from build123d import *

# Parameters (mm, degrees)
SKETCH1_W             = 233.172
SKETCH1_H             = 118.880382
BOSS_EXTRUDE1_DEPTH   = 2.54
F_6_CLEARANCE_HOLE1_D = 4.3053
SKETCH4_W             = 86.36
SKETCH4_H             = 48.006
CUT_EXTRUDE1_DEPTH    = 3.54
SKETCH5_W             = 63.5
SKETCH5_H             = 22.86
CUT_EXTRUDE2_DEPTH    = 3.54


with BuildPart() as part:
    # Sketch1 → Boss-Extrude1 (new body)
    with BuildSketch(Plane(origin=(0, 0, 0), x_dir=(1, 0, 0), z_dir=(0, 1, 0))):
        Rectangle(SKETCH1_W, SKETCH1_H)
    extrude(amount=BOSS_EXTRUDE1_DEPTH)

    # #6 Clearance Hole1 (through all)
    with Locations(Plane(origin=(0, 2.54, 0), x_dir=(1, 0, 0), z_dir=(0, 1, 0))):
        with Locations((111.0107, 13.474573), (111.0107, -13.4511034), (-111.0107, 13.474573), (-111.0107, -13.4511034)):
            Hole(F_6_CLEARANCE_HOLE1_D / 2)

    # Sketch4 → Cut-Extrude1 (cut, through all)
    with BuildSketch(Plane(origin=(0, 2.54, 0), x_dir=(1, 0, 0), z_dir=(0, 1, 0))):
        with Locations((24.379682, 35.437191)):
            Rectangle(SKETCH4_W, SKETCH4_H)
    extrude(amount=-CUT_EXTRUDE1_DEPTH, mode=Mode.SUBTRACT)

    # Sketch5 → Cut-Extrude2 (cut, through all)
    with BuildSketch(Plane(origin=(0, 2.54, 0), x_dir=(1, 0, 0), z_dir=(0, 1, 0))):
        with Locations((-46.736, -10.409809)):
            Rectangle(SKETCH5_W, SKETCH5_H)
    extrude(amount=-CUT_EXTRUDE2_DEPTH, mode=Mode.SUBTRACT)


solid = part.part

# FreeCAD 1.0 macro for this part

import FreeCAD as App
import Part
import Sketcher

V = App.Vector
Q = App.Units.Quantity

doc = App.newDocument("Part")
body = doc.addObject("PartDesign::Body", "Body")

# Sketch on XZ plane
sketch1 = body.newObject("Sketcher::SketchObject", "Sketch")
sketch1.AttachmentSupport = (doc.getObject("XZ_Plane"), [""])
sketch1.MapMode = "FlatFace"
sketch1.addGeometry([
    Part.LineSegment(V(-116.586, -59.440191, 0), V(-116.586, 59.440191, 0)),
    Part.LineSegment(V(-116.586, 59.440191, 0), V(116.586, 59.440191, 0)),
    Part.LineSegment(V(116.586, 59.440191, 0), V(116.586, -59.440191, 0)),
    Part.LineSegment(V(116.586, -59.440191, 0), V(-116.586, -59.440191, 0)),
], False)
sketch1.addConstraint([
    Sketcher.Constraint("Coincident", 0, 2, 1, 1),
    Sketcher.Constraint("Coincident", 1, 2, 2, 1),
    Sketcher.Constraint("Coincident", 2, 2, 3, 1),
    Sketcher.Constraint("Coincident", 3, 2, 0, 1),
    Sketcher.Constraint("Vertical", 0),
    Sketcher.Constraint("Horizontal", 1),
    Sketcher.Constraint("Vertical", 2),
    Sketcher.Constraint("Horizontal", 3),
    Sketcher.Constraint("Symmetric", 0, 2, 2, 2, -1, 1),
    Sketcher.Constraint("DistanceX", 1, 1, 1, 2, Q("9.18 in")),
    Sketcher.Constraint("DistanceY", 0, 1, 0, 2, 118.880382),
])
pad1 = body.newObject("PartDesign::Pad", "Pad")
pad1.Profile = sketch1
pad1.Length = Q("0.1 in")
pad1.Reversed = True

# Sketch on XZ plane
sketch2 = body.newObject("Sketcher::SketchObject", "Sketch001")
sketch2.AttachmentSupport = (doc.getObject("XZ_Plane"), [""])
sketch2.MapMode = "FlatFace"
sketch2.AttachmentOffset = App.Placement(V(0, 0, -0.1 * 25.4), App.Rotation())
sketch2.addGeometry([
    Part.Circle(V(111.0107, -13.474573, 0), V(0, 0, 1), 2.15265),
    Part.Circle(V(111.0107, 13.451103, 0), V(0, 0, 1), 2.15265),
    Part.Circle(V(-111.0107, -13.474573, 0), V(0, 0, 1), 2.15265),
    Part.Circle(V(-111.0107, 13.451103, 0), V(0, 0, 1), 2.15265),
], False)
sketch2.addConstraint([
    Sketcher.Constraint("Equal", 0, 1),
    Sketcher.Constraint("Equal", 1, 2),
    Sketcher.Constraint("Equal", 2, 3),
    Sketcher.Constraint("Symmetric", 0, 3, 2, 3, -2),
    Sketcher.Constraint("Symmetric", 1, 3, 3, 3, -2),
    Sketcher.Constraint("Vertical", 0, 3, 1, 3),
    Sketcher.Constraint("Diameter", 0, Q("0.1695 in")),
    Sketcher.Constraint("DistanceX", 2, 3, 0, 3, Q("8.741 in")),
    Sketcher.Constraint("DistanceY", 0, 3, -1, 1, 13.474573),
    Sketcher.Constraint("DistanceY", -1, 1, 1, 3, 13.451103),
])
doc.recompute()
hole = body.newObject("PartDesign::Hole", "Hole")
hole.Profile = sketch2
hole.ThreadType = "None"
hole.Diameter = Q("0.1695 in")
hole.DepthType = "ThroughAll"
hole.Reversed = True

# Sketch on XZ plane
sketch3 = body.newObject("Sketcher::SketchObject", "Sketch002")
sketch3.AttachmentSupport = (doc.getObject("XZ_Plane"), [""])
sketch3.MapMode = "FlatFace"
sketch3.AttachmentOffset = App.Placement(V(0, 0, -0.1 * 25.4), App.Rotation())
sketch3.addGeometry([
    Part.LineSegment(V(-18.800318, -59.440191, 0), V(-18.800318, -11.434191, 0)),
    Part.LineSegment(V(-18.800318, -11.434191, 0), V(67.559682, -11.434191, 0)),
    Part.LineSegment(V(67.559682, -11.434191, 0), V(67.559682, -59.440191, 0)),
    Part.LineSegment(V(67.559682, -59.440191, 0), V(-18.800318, -59.440191, 0)),
], False)
sketch3.addConstraint([
    Sketcher.Constraint("Coincident", 0, 2, 1, 1),
    Sketcher.Constraint("Coincident", 1, 2, 2, 1),
    Sketcher.Constraint("Coincident", 2, 2, 3, 1),
    Sketcher.Constraint("Coincident", 3, 2, 0, 1),
    Sketcher.Constraint("Vertical", 0),
    Sketcher.Constraint("Horizontal", 1),
    Sketcher.Constraint("Vertical", 2),
    Sketcher.Constraint("Horizontal", 3),
    Sketcher.Constraint("DistanceX", 1, 1, 1, 2, Q("3.4 in")),
    Sketcher.Constraint("DistanceY", 0, 1, 0, 2, Q("1.89 in")),
    Sketcher.Constraint("DistanceX", 0, 2, -1, 1, 18.800318),
    Sketcher.Constraint("DistanceY", 0, 2, -1, 1, 11.434191),
])
pocket1 = body.newObject("PartDesign::Pocket", "Pocket")
pocket1.Profile = sketch3
pocket1.Type = "ThroughAll"
pocket1.Reversed = True

# Sketch on XZ plane
sketch4 = body.newObject("Sketcher::SketchObject", "Sketch003")
sketch4.AttachmentSupport = (doc.getObject("XZ_Plane"), [""])
sketch4.MapMode = "FlatFace"
sketch4.AttachmentOffset = App.Placement(V(0, 0, -0.1 * 25.4), App.Rotation())
sketch4.addGeometry([
    Part.LineSegment(V(-78.486, -1.020191, 0), V(-78.486, 21.839809, 0)),
    Part.LineSegment(V(-78.486, 21.839809, 0), V(-14.986, 21.839809, 0)),
    Part.LineSegment(V(-14.986, 21.839809, 0), V(-14.986, -1.020191, 0)),
    Part.LineSegment(V(-14.986, -1.020191, 0), V(-78.486, -1.020191, 0)),
], False)
sketch4.addConstraint([
    Sketcher.Constraint("Coincident", 0, 2, 1, 1),
    Sketcher.Constraint("Coincident", 1, 2, 2, 1),
    Sketcher.Constraint("Coincident", 2, 2, 3, 1),
    Sketcher.Constraint("Coincident", 3, 2, 0, 1),
    Sketcher.Constraint("Vertical", 0),
    Sketcher.Constraint("Horizontal", 1),
    Sketcher.Constraint("Vertical", 2),
    Sketcher.Constraint("Horizontal", 3),
    Sketcher.Constraint("DistanceX", 1, 1, 1, 2, Q("2.5 in")),
    Sketcher.Constraint("DistanceY", 0, 1, 0, 2, Q("0.9 in")),
    Sketcher.Constraint("DistanceX", 0, 2, -1, 1, Q("3.09 in")),
    Sketcher.Constraint("DistanceY", -1, 1, 0, 2, 21.839809),
])
pocket2 = body.newObject("PartDesign::Pocket", "Pocket001")
pocket2.Profile = sketch4
pocket2.Type = "ThroughAll"
pocket2.Reversed = True

doc.recompute()
